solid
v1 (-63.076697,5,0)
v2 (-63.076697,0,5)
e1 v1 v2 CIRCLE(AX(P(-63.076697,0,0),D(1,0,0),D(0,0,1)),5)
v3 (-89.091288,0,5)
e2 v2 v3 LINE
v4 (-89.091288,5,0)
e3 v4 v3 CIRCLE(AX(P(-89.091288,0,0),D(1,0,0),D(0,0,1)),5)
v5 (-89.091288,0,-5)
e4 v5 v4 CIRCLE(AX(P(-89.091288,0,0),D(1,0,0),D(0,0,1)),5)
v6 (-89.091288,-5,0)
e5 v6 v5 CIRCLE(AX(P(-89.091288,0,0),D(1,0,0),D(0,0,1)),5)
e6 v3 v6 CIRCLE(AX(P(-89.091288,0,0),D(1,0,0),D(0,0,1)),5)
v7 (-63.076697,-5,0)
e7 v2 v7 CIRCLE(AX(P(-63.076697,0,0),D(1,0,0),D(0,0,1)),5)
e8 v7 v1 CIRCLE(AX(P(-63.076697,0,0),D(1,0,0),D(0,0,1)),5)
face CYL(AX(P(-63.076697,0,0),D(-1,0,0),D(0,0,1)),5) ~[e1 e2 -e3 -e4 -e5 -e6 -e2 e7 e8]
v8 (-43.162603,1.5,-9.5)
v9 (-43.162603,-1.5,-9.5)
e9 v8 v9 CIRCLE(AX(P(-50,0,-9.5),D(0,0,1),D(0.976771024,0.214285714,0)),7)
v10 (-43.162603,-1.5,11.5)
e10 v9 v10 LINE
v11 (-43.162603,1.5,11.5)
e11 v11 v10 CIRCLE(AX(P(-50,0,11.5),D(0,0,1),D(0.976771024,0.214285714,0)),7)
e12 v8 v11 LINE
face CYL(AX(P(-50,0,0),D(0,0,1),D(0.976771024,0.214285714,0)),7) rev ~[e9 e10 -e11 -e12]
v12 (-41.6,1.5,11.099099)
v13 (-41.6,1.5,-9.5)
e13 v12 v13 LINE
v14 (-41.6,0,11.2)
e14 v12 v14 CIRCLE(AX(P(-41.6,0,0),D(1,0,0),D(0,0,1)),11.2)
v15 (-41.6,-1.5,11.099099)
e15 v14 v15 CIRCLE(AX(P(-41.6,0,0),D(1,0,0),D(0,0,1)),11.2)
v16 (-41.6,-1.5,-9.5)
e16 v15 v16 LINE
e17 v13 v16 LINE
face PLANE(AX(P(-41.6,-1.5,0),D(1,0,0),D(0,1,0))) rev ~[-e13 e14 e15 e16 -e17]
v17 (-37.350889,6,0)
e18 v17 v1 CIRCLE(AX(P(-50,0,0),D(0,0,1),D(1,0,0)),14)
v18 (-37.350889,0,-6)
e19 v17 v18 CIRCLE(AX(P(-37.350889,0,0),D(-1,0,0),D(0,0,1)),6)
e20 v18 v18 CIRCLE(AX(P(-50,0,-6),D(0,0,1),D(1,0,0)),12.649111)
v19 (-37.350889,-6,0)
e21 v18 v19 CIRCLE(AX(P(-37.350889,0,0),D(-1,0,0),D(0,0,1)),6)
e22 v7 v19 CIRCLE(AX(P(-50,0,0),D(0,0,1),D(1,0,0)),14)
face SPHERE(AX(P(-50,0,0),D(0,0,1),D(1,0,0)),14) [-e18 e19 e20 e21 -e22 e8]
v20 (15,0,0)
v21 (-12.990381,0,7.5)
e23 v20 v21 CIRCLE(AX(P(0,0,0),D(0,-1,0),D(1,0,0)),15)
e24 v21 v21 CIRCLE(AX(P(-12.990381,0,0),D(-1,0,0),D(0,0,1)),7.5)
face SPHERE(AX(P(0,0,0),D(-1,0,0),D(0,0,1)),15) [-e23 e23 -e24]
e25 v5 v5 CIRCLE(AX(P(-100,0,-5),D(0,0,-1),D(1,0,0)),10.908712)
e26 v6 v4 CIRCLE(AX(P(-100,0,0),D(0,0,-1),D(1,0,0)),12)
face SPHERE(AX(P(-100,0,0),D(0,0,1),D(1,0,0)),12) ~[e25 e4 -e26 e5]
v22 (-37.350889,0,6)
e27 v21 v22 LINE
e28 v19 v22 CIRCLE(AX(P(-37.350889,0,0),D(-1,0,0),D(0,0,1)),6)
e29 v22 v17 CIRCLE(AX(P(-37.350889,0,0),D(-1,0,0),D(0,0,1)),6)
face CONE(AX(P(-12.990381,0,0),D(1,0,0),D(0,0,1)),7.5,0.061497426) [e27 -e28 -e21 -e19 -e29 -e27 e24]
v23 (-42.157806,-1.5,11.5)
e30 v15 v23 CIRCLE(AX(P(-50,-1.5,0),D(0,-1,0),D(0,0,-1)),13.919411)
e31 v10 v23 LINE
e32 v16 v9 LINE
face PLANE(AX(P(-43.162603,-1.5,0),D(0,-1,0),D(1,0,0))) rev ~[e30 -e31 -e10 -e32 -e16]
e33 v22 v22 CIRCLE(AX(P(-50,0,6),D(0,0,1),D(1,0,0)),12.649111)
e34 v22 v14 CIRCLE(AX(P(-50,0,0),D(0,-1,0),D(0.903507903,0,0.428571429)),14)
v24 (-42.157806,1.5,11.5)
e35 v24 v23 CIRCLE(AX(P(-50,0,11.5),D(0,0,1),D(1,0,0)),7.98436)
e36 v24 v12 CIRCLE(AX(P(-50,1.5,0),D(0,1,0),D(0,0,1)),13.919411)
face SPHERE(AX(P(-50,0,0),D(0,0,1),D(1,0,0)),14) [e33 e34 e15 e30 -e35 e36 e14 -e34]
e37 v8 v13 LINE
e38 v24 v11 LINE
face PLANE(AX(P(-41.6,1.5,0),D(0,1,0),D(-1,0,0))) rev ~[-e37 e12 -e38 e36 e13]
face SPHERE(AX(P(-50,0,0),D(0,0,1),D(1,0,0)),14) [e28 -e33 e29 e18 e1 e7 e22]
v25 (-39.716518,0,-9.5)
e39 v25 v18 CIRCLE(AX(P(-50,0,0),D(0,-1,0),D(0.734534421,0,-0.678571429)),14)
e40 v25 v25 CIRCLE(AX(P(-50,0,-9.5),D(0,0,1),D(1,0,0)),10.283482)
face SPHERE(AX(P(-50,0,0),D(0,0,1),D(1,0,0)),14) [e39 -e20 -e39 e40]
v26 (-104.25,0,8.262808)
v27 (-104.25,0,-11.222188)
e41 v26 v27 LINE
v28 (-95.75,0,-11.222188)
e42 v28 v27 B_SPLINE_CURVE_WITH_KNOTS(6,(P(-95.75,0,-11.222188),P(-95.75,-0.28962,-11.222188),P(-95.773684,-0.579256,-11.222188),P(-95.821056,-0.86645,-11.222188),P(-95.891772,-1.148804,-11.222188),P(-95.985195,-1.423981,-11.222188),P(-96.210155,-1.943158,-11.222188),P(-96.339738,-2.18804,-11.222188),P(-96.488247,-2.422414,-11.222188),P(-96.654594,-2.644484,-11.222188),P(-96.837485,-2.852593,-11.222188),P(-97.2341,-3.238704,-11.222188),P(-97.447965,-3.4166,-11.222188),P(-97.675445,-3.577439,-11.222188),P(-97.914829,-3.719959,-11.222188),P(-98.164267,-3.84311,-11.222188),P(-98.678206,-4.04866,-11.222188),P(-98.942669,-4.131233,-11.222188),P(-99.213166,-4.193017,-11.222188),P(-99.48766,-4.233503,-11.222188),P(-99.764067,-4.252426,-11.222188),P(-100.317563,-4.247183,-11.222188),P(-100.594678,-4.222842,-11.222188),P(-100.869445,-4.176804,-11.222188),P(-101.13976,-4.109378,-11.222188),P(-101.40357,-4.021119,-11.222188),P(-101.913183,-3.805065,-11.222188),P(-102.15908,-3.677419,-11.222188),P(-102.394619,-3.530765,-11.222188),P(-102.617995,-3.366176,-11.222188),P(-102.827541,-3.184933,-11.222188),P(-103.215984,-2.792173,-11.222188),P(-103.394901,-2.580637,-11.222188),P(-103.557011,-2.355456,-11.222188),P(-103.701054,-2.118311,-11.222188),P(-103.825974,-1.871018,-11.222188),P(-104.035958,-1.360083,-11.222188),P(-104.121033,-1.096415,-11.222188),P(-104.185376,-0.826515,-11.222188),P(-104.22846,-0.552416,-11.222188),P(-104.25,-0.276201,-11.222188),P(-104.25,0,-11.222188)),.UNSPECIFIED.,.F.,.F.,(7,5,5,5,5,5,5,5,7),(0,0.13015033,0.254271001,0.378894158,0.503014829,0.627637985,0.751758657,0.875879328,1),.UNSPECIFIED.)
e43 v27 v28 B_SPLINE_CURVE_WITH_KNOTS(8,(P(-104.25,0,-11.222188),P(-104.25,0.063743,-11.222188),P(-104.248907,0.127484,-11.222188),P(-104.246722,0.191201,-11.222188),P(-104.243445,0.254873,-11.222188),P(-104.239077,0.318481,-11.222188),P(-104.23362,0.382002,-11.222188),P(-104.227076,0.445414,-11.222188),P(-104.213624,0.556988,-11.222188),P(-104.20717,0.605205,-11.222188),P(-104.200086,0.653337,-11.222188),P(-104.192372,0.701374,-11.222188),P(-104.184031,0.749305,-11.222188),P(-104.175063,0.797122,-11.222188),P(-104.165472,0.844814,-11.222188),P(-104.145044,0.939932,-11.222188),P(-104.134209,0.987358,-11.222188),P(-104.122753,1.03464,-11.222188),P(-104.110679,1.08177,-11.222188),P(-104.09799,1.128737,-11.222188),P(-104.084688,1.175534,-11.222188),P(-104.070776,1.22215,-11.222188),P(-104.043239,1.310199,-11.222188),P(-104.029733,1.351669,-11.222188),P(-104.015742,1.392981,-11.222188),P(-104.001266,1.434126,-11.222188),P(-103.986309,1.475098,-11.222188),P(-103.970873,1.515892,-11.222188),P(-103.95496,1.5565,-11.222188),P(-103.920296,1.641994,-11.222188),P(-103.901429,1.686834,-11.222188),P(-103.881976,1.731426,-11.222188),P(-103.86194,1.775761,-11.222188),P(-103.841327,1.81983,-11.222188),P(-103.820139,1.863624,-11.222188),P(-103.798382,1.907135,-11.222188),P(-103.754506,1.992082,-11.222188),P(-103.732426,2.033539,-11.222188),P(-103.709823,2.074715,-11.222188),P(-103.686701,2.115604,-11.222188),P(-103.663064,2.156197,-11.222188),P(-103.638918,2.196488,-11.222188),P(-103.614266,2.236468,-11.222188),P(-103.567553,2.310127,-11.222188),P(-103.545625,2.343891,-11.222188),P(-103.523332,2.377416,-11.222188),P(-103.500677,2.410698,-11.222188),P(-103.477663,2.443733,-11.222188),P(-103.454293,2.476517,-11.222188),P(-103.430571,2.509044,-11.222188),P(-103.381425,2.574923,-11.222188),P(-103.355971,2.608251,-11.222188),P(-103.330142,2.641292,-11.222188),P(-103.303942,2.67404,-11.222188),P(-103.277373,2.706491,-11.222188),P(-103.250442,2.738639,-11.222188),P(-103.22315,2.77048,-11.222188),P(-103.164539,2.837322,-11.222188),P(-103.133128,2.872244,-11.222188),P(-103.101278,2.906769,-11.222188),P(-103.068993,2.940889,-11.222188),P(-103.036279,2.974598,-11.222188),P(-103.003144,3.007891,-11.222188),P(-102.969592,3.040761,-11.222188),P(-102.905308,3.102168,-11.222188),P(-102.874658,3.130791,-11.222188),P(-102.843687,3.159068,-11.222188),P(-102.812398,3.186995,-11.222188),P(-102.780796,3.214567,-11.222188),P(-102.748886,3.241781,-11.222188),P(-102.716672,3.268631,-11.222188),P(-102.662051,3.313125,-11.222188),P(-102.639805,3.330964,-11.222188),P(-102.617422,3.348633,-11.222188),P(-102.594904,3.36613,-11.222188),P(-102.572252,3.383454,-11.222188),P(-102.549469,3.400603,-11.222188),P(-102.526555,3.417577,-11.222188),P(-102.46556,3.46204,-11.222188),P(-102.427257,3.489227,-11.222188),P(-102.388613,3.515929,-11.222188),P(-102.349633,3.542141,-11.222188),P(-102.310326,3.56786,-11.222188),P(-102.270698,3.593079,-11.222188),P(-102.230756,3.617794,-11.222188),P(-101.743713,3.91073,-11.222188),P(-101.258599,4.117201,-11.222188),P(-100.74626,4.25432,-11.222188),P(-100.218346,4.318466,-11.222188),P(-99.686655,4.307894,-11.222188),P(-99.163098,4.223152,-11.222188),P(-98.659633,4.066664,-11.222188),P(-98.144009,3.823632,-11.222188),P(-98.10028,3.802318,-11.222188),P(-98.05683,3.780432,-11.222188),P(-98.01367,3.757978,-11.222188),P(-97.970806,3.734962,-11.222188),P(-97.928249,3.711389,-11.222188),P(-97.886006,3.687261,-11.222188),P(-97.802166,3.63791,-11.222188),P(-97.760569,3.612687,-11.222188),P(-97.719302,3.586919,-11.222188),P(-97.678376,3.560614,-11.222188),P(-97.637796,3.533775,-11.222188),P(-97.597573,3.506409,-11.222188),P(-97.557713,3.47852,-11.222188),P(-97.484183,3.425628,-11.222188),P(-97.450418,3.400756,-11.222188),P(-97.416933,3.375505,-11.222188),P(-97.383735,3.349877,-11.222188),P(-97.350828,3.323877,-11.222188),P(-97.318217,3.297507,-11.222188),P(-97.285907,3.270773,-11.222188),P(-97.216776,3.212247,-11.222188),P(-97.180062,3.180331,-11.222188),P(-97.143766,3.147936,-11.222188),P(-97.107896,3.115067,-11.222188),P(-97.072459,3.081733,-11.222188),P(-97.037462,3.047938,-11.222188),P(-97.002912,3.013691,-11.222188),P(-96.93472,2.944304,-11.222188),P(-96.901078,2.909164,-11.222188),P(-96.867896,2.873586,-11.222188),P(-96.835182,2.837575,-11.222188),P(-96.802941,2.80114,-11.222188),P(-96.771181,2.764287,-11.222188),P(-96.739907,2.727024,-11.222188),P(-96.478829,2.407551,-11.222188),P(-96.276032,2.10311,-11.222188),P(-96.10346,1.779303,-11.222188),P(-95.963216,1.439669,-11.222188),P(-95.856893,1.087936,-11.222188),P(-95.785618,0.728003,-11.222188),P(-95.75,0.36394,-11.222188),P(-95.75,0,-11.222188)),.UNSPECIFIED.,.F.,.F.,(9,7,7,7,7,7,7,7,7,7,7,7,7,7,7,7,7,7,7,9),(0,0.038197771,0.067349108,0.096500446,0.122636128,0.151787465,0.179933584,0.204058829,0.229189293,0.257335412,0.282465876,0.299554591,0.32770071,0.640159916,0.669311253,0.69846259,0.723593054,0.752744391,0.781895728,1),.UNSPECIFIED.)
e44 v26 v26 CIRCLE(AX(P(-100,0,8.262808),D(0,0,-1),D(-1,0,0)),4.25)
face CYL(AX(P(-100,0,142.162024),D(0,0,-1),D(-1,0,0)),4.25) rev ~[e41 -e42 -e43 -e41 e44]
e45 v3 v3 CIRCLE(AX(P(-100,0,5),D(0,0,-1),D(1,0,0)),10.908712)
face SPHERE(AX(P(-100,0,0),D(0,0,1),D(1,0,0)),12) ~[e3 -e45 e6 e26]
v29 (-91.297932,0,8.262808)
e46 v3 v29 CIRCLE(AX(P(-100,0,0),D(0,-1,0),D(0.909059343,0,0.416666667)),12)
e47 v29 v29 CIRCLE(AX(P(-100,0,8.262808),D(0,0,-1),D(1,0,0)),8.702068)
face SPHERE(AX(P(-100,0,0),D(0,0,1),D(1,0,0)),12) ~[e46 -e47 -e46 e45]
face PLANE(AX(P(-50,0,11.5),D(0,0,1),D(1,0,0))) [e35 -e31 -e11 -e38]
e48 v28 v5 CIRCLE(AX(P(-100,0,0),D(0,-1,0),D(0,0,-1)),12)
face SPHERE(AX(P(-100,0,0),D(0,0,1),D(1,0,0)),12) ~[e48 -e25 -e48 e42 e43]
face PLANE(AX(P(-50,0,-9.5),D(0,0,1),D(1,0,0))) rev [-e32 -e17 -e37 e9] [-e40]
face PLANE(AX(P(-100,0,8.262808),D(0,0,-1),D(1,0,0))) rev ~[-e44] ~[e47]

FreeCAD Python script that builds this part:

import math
import FreeCAD as App
import Part
import Sketcher

doc = App.newDocument("Part")
body = doc.addObject("PartDesign::Body", "Body")

# Sketch on XZ plane
sketch1 = body.newObject("Sketcher::SketchObject", "Sketch")
sketch1.AttachmentSupport = (doc.getObject("XZ_Plane"), [""])
sketch1.MapMode = "FlatFace"
sketch1.addGeometry([
    Part.ArcOfCircle(Part.Circle(App.Vector(0, 0, 0), App.Vector(0, 0, 1), 15), math.radians(0), math.radians(150)),
    Part.LineSegment(App.Vector(-13, 8, 0), App.Vector(-37, 6, 0)),
    Part.ArcOfCircle(Part.Circle(App.Vector(-50, 0, 0), App.Vector(0, 0, 1), 14), math.radians(0), math.radians(25)),
    Part.LineSegment(App.Vector(-36, 0, 0), App.Vector(15, 0, 0)),
], False)
sketch1.addConstraint([
    Sketcher.Constraint("Coincident", 0, 2, 1, 1),
    Sketcher.Constraint("Coincident", 1, 2, 2, 2),
    Sketcher.Constraint("Coincident", 2, 1, 3, 1),
    Sketcher.Constraint("Coincident", 3, 2, 0, 1),
    Sketcher.Constraint("Horizontal", 3),
    Sketcher.Constraint("Coincident", 0, 3, -1, 1),
    Sketcher.Constraint("PointOnObject", 2, 3, -1),
    Sketcher.Constraint("PointOnObject", 2, 1, -1),
    Sketcher.Constraint("Radius", 0, 15.0),
    Sketcher.Constraint("Radius", 2, 14.0),
    Sketcher.Constraint("DistanceX", 3, 1, 3, 2, 51.0),
    Sketcher.Constraint("DistanceY", -1, 1, 1, 2, 6.0),
    Sketcher.Constraint("DistanceY", -1, 1, 0, 2, 7.5),
])
revolution = body.newObject("PartDesign::Revolution", "Revolution")
revolution.Profile = sketch1
revolution.ReferenceAxis = (sketch1, ["H_Axis"])
revolution.Angle = 360

# Sketch on XZ plane
sketch2 = body.newObject("Sketcher::SketchObject", "Sketch001")
sketch2.AttachmentSupport = (doc.getObject("XZ_Plane"), [""])
sketch2.MapMode = "FlatFace"
sketch2.addGeometry([
    Part.ArcOfCircle(Part.Circle(App.Vector(-50, 0, 0), App.Vector(0, 0, 1), 14), math.radians(0), math.radians(25)),  # 0
    Part.ArcOfCircle(Part.Circle(App.Vector(-50, 0, 0), App.Vector(0, 0, 1), 14), math.radians(25), math.radians(55)),  # 1
    Part.LineSegment(App.Vector(-42, 11.5, 0), App.Vector(-50, 11.5, 0)),  # 2
    Part.LineSegment(App.Vector(-50, 11.5, 0), App.Vector(-50, -9.5, 0)),  # 3
    Part.LineSegment(App.Vector(-50, -9.5, 0), App.Vector(-39.7, -9.5, 0)),  # 4
    Part.ArcOfCircle(Part.Circle(App.Vector(-50, 0, 0), App.Vector(0, 0, 1), 14), math.radians(-42.73), math.radians(-25.38)),  # 5
    Part.ArcOfCircle(Part.Circle(App.Vector(-50, 0, 0), App.Vector(0, 0, 1), 14), math.radians(-25), math.radians(0)),  # 6
], False)
sketch2.addGeometry(Part.LineSegment(App.Vector(-50, -9.5, 0), App.Vector(-50, 11.5, 0)), True)  # axis
sketch2.addConstraint([
    Sketcher.Constraint("Tangent", 0, 2, 1, 1),
    Sketcher.Constraint("Coincident", 1, 2, 2, 1),
    Sketcher.Constraint("Coincident", 2, 2, 3, 1),
    Sketcher.Constraint("Coincident", 3, 2, 4, 1),
    Sketcher.Constraint("Coincident", 4, 2, 5, 1),
    Sketcher.Constraint("Tangent", 5, 2, 6, 1),
    Sketcher.Constraint("Tangent", 6, 2, 0, 1),
    Sketcher.Constraint("Horizontal", 2),
    Sketcher.Constraint("Vertical", 3),
    Sketcher.Constraint("Horizontal", 4),
    Sketcher.Constraint("Vertical", 7),
    Sketcher.Constraint("Coincident", 5, 3, 0, 3),
    Sketcher.Constraint("Coincident", 7, 1, 3, 2),
    Sketcher.Constraint("Equal", 0, 1),
    Sketcher.Constraint("Symmetric", 0, 2, 5, 2, -1),
    Sketcher.Constraint("PointOnObject", 6, 2, -1),
    Sketcher.Constraint("Horizontal", 1, 2, 7, 2),
    Sketcher.Constraint("Vertical", 6, 3, 2, 2),
    Sketcher.Constraint("Radius", 0, 14.0),
    Sketcher.Constraint("DistanceY", 3, 2, 3, 1, 21.0),
    Sketcher.Constraint("DistanceX", 0, 3, -1, 1, 50.0),
    Sketcher.Constraint("DistanceY", -1, 1, 0, 2, 6.0),
    Sketcher.Constraint("DistanceY", -1, 1, 1, 2, 11.5),
])
revolution2 = body.newObject("PartDesign::Revolution", "Revolution001")
revolution2.Profile = sketch2
revolution2.ReferenceAxis = (sketch2, ["Axis0"])
revolution2.Angle = 360

# Sketch on XZ plane
sketch3 = body.newObject("Sketcher::SketchObject", "Sketch002")
sketch3.AttachmentSupport = (doc.getObject("XZ_Plane"), [""])
sketch3.MapMode = "FlatFace"
sketch3.addGeometry([
    Part.ArcOfCircle(Part.Circle(App.Vector(-50, 0, 0), App.Vector(0, 0, 1), 14), math.radians(159), math.radians(180)),
    Part.LineSegment(App.Vector(-63, 5, 0), App.Vector(-89, 5, 0)),
    Part.ArcOfCircle(Part.Circle(App.Vector(-100, 0, 0), App.Vector(0, 0, 1), 12), math.radians(0), math.radians(25)),
    Part.LineSegment(App.Vector(-88, 0, 0), App.Vector(-64, 0, 0)),
], False)
sketch3.addConstraint([
    Sketcher.Constraint("Coincident", 0, 1, 1, 1),
    Sketcher.Constraint("Coincident", 1, 2, 2, 2),
    Sketcher.Constraint("Coincident", 2, 1, 3, 1),
    Sketcher.Constraint("Coincident", 3, 2, 0, 2),
    Sketcher.Constraint("Horizontal", 1),
    Sketcher.Constraint("Horizontal", 3),
    Sketcher.Constraint("PointOnObject", 0, 3, -1),
    Sketcher.Constraint("PointOnObject", 2, 3, -1),
    Sketcher.Constraint("PointOnObject", 2, 1, -1),
    Sketcher.Constraint("Radius", 0, 14.0),
    Sketcher.Constraint("Radius", 2, 12.0),
    Sketcher.Constraint("DistanceX", 3, 1, 3, 2, 24.0),
    Sketcher.Constraint("DistanceX", 0, 3, -1, 1, 50.0),
    Sketcher.Constraint("DistanceY", -1, 1, 0, 1, 5.0),
])
revolution3 = body.newObject("PartDesign::Revolution", "Revolution002")
revolution3.Profile = sketch3
revolution3.ReferenceAxis = (sketch3, ["H_Axis"])
revolution3.Angle = 360

# Sketch on XZ plane
sketch4 = body.newObject("Sketcher::SketchObject", "Sketch003")
sketch4.AttachmentSupport = (doc.getObject("XZ_Plane"), [""])
sketch4.MapMode = "FlatFace"
sketch4.addGeometry([
    Part.ArcOfCircle(Part.Circle(App.Vector(-100, 0, 0), App.Vector(0, 0, 1), 12), math.radians(0), math.radians(25)),  # 0
    Part.ArcOfCircle(Part.Circle(App.Vector(-100, 0, 0), App.Vector(0, 0, 1), 12), math.radians(24.62), math.radians(43.52)),  # 1
    Part.LineSegment(App.Vector(-91.3, 8.3, 0), App.Vector(-100, 8.3, 0)),  # 2
    Part.LineSegment(App.Vector(-100, 8.3, 0), App.Vector(-100, -12, 0)),  # 3
    Part.ArcOfCircle(Part.Circle(App.Vector(-100, 0, 0), App.Vector(0, 0, 1), 12), math.radians(-90), math.radians(-25)),  # 4
    Part.ArcOfCircle(Part.Circle(App.Vector(-100, 0, 0), App.Vector(0, 0, 1), 12), math.radians(-25), math.radians(0)),  # 5
], False)
sketch4.addGeometry(Part.LineSegment(App.Vector(-100, 8.3, 0), App.Vector(-100, -12, 0)), True)  # axis
sketch4.addConstraint([
    Sketcher.Constraint("Tangent", 0, 2, 1, 1),
    Sketcher.Constraint("Coincident", 1, 2, 2, 1),
    Sketcher.Constraint("Coincident", 2, 2, 3, 1),
    Sketcher.Constraint("Coincident", 3, 2, 4, 1),
    Sketcher.Constraint("Tangent", 4, 2, 5, 1),
    Sketcher.Constraint("Tangent", 5, 2, 0, 1),
    Sketcher.Constraint("Horizontal", 2),
    Sketcher.Constraint("Vertical", 3),
    Sketcher.Constraint("Vertical", 6),
    Sketcher.Constraint("Coincident", 4, 3, 0, 3),
    Sketcher.Constraint("Coincident", 6, 1, 2, 2),
    Sketcher.Constraint("Equal", 0, 1),
    Sketcher.Constraint("Symmetric", 0, 2, 4, 2, -1),
    Sketcher.Constraint("PointOnObject", 5, 2, -1),
    Sketcher.Constraint("Vertical", 5, 3, 2, 2),
    Sketcher.Constraint("Equal", 3, 6),
    Sketcher.Constraint("Radius", 0, 12.0),
    Sketcher.Constraint("DistanceX", 0, 3, -1, 1, 100.0),
    Sketcher.Constraint("DistanceY", -1, 1, 0, 2, 5.0),
    Sketcher.Constraint("DistanceX", 2, 2, 2, 1, 8.702068),
])
revolution4 = body.newObject("PartDesign::Revolution", "Revolution003")
revolution4.Profile = sketch4
revolution4.ReferenceAxis = (sketch4, ["Axis0"])
revolution4.Angle = 360

# Sketch on XY plane
sketch5 = body.newObject("Sketcher::SketchObject", "Sketch004")
sketch5.AttachmentSupport = (doc.getObject("XY_Plane"), [""])
sketch5.MapMode = "FlatFace"
sketch5.addGeometry([
    Part.LineSegment(App.Vector(-41.6, 1.5, 0), App.Vector(-43.2, 1.5, 0)),
    Part.ArcOfCircle(Part.Circle(App.Vector(-50, 0, 0), App.Vector(0, 0, 1), 7), math.radians(12), math.radians(348)),
    Part.LineSegment(App.Vector(-43.2, -1.5, 0), App.Vector(-41.6, -1.5, 0)),
    Part.LineSegment(App.Vector(-41.6, -1.5, 0), App.Vector(-41.6, 1.5, 0)),
], False)
sketch5.addConstraint([
    Sketcher.Constraint("Coincident", 0, 2, 1, 1),
    Sketcher.Constraint("Coincident", 1, 2, 2, 1),
    Sketcher.Constraint("Coincident", 2, 2, 3, 1),
    Sketcher.Constraint("Coincident", 3, 2, 0, 1),
    Sketcher.Constraint("Horizontal", 0),
    Sketcher.Constraint("Horizontal", 2),
    Sketcher.Constraint("Vertical", 3),
    Sketcher.Constraint("Symmetric", 0, 2, 1, 2, -1),
    Sketcher.Constraint("Radius", 1, 7.0),
    Sketcher.Constraint("DistanceY", 3, 1, 3, 2, 3.0),
    Sketcher.Constraint("DistanceX", 1, 3, -1, 1, 50.0),
    Sketcher.Constraint("DistanceX", 2, 2, -1, 1, 41.6),
])
pocket1 = body.newObject("PartDesign::Pocket", "Pocket")
pocket1.Profile = sketch5
pocket1.Length = 30
pocket1.Midplane = True

# Sketch on XY plane
sketch6 = body.newObject("Sketcher::SketchObject", "Sketch005")
sketch6.AttachmentSupport = (doc.getObject("XY_Plane"), [""])
sketch6.MapMode = "FlatFace"
sketch6.AttachmentOffset = App.Placement(App.Vector(0, 0, 8.262808), App.Rotation())
sketch6.addGeometry(Part.Circle(App.Vector(-100, 0, 0), App.Vector(0, 0, 1), 4.2), False)
sketch6.addConstraint([
    Sketcher.Constraint("PointOnObject", 0, 3, -1),
    Sketcher.Constraint("Diameter", 0, 8.5),
    Sketcher.Constraint("DistanceX", 0, 3, -1, 1, 100.0),
])
doc.recompute()
hole = body.newObject("PartDesign::Hole", "Hole")
hole.Profile = sketch6
hole.ThreadType = "None"
hole.Diameter = 8.5
hole.DepthType = "ThroughAll"

doc.recompute()
